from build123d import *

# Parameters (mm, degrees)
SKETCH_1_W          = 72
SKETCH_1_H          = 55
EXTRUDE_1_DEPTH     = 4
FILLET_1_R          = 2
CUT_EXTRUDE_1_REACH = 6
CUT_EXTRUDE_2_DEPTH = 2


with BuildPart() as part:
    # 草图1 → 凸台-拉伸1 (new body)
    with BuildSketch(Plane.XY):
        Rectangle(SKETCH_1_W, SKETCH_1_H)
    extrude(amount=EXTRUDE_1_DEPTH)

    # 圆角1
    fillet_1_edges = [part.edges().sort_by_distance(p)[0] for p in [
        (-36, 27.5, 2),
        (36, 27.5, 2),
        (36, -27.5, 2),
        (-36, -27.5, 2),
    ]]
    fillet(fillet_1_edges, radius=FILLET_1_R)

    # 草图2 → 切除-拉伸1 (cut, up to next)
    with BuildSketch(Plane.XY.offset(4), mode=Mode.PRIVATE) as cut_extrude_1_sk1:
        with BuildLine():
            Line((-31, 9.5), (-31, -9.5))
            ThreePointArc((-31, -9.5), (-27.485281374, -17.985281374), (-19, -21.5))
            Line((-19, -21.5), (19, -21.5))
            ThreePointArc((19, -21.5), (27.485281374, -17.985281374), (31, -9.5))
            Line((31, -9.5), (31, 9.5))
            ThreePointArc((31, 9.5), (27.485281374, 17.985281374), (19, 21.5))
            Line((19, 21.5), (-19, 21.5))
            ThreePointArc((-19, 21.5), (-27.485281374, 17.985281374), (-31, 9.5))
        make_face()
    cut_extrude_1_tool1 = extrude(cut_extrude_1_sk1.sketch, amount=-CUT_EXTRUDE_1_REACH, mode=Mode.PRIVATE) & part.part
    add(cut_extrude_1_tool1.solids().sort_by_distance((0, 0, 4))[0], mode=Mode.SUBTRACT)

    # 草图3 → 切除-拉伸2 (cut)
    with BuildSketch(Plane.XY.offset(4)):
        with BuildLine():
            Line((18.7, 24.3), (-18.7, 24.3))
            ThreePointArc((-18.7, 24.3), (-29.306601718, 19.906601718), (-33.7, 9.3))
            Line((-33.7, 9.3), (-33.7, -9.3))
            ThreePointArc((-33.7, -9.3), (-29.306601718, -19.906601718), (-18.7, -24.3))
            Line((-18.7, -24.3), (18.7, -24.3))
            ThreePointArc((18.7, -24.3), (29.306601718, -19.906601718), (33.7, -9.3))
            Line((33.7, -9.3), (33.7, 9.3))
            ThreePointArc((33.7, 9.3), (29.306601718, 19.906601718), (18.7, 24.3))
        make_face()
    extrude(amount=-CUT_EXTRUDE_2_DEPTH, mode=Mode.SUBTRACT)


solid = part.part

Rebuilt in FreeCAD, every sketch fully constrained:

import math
import FreeCAD as App
import Part
import Sketcher
from FreeCAD import Vector
Q = App.Units.Quantity


def edges_at(feature, points):
    """Names of the edges that pass closest to the given points."""
    edges = feature.Shape.Edges
    near = lambda p: min(range(len(edges)), key=lambda i: edges[i].distToShape(Part.Vertex(*p))[0])
    return sorted({f"Edge{near(p) + 1}" for p in points})


def add_polygon(sketch, points):
    """Adds a closed chain of lines whose ends are joined by coincident constraints."""
    first, n = sketch.GeometryCount, len(points)
    for a, b in zip(points, points[1:] + points[:1]):
        sketch.addGeometry(Part.LineSegment(App.Vector(*a, 0), App.Vector(*b, 0)), False)
    for i in range(n):
        sketch.addConstraint(Sketcher.Constraint("Coincident", first + i, 2, first + (i + 1) % n, 1))

doc = App.newDocument("Part")
body = doc.addObject("PartDesign::Body", "Body")

sketch1 = doc.addObject("Sketcher::SketchObject", "Sketch")
body.addObject(sketch1)
sketch1.AttachmentSupport = (doc.XY_Plane, [""])
sketch1.MapMode = "FlatFace"
add_polygon(sketch1, [(-36, 27.5), (-36, -27.5), (36, -27.5), (36, 27.5)])
sketch1.addConstraint(Sketcher.Constraint("Vertical", 0))
sketch1.addConstraint(Sketcher.Constraint("Horizontal", 1))
sketch1.addConstraint(Sketcher.Constraint("Vertical", 2))
sketch1.addConstraint(Sketcher.Constraint("Horizontal", 3))
sketch1.addConstraint(Sketcher.Constraint("Symmetric", 0, 2, 2, 2, -1, 1))
sketch1.addConstraint(Sketcher.Constraint("DistanceX", 1, 1, 1, 2, Q("72 mm")))
sketch1.addConstraint(Sketcher.Constraint("DistanceY", 0, 2, 0, 1, Q("55 mm")))
pad1 = doc.addObject("PartDesign::Pad", "Pad")
body.addObject(pad1)
pad1.Profile = sketch1
pad1.Length = 4
doc.recompute()

fillet = doc.addObject("PartDesign::Fillet", "Fillet")
body.addObject(fillet)
fillet.Base = (pad1, edges_at(pad1, [
    (-36, 27.5, 2),
    (36, 27.5, 2),
    (36, -27.5, 2),
    (-36, -27.5, 2),
]))
fillet.Radius = 2

sketch2 = doc.addObject("Sketcher::SketchObject", "Sketch001")
body.addObject(sketch2)
sketch2.AttachmentSupport = (doc.XY_Plane, [""])
sketch2.MapMode = "FlatFace"
sketch2.AttachmentOffset = App.Placement(Vector(0, 0, 4), App.Rotation())
sketch2.addGeometry(Part.LineSegment(Vector(-31, 9.5, 0), Vector(-31, -9.5, 0)), False)
sketch2.addGeometry(Part.ArcOfCircle(Part.Circle(Vector(-19, -9.5, 0), Vector(0, 0, 1), 12), math.radians(-180), math.radians(-90)), False)
sketch2.addGeometry(Part.LineSegment(Vector(-19, -21.5, 0), Vector(19, -21.5, 0)), False)
sketch2.addGeometry(Part.ArcOfCircle(Part.Circle(Vector(19, -9.5, 0), Vector(0, 0, 1), 12), math.radians(-90), math.radians(0)), False)
sketch2.addGeometry(Part.LineSegment(Vector(31, -9.5, 0), Vector(31, 9.5, 0)), False)
sketch2.addGeometry(Part.ArcOfCircle(Part.Circle(Vector(19, 9.5, 0), Vector(0, 0, 1), 12), math.radians(0), math.radians(90)), False)
sketch2.addGeometry(Part.LineSegment(Vector(19, 21.5, 0), Vector(-19, 21.5, 0)), False)
sketch2.addGeometry(Part.ArcOfCircle(Part.Circle(Vector(-19, 9.5, 0), Vector(0, 0, 1), 12), math.radians(90), math.radians(180)), False)
sketch2.addConstraint(Sketcher.Constraint("Tangent", 0, 2, 1, 1))
sketch2.addConstraint(Sketcher.Constraint("Tangent", 1, 2, 2, 1))
sketch2.addConstraint(Sketcher.Constraint("Tangent", 2, 2, 3, 1))
sketch2.addConstraint(Sketcher.Constraint("Tangent", 3, 2, 4, 1))
sketch2.addConstraint(Sketcher.Constraint("Tangent", 4, 2, 5, 1))
sketch2.addConstraint(Sketcher.Constraint("Tangent", 5, 2, 6, 1))
sketch2.addConstraint(Sketcher.Constraint("Tangent", 6, 2, 7, 1))
sketch2.addConstraint(Sketcher.Constraint("Tangent", 7, 2, 0, 1))
sketch2.addConstraint(Sketcher.Constraint("Vertical", 0))
sketch2.addConstraint(Sketcher.Constraint("Horizontal", 2))
sketch2.addConstraint(Sketcher.Constraint("Vertical", 4))
sketch2.addConstraint(Sketcher.Constraint("Horizontal", 6))
sketch2.addConstraint(Sketcher.Constraint("Equal", 1, 3))
sketch2.addConstraint(Sketcher.Constraint("Equal", 3, 5))
sketch2.addConstraint(Sketcher.Constraint("Equal", 5, 7))
sketch2.addConstraint(Sketcher.Constraint("Symmetric", 1, 3, 5, 3, -1, 1))
sketch2.addConstraint(Sketcher.Constraint("Radius", 1, Q("12 mm")))
sketch2.addConstraint(Sketcher.Constraint("DistanceX", 2, 1, 2, 2, Q("38 mm")))
sketch2.addConstraint(Sketcher.Constraint("DistanceY", 0, 2, 0, 1, Q("19 mm")))
pocket1 = doc.addObject("PartDesign::Pocket", "Pocket")
body.addObject(pocket1)
pocket1.Profile = sketch2
pocket1.Type = "UpToFirst"

sketch3 = doc.addObject("Sketcher::SketchObject", "Sketch002")
body.addObject(sketch3)
sketch3.AttachmentSupport = (doc.XY_Plane, [""])
sketch3.MapMode = "FlatFace"
sketch3.AttachmentOffset = App.Placement(Vector(0, 0, 4), App.Rotation())
sketch3.addGeometry(Part.LineSegment(Vector(18.7, 24.3, 0), Vector(-18.7, 24.3, 0)), False)
sketch3.addGeometry(Part.ArcOfCircle(Part.Circle(Vector(-18.7, 9.3, 0), Vector(0, 0, 1), 15), math.radians(90), math.radians(180)), False)
sketch3.addGeometry(Part.LineSegment(Vector(-33.7, 9.3, 0), Vector(-33.7, -9.3, 0)), False)
sketch3.addGeometry(Part.ArcOfCircle(Part.Circle(Vector(-18.7, -9.3, 0), Vector(0, 0, 1), 15), math.radians(180), math.radians(270)), False)
sketch3.addGeometry(Part.LineSegment(Vector(-18.7, -24.3, 0), Vector(18.7, -24.3, 0)), False)
sketch3.addGeometry(Part.ArcOfCircle(Part.Circle(Vector(18.7, -9.3, 0), Vector(0, 0, 1), 15), math.radians(-90), math.radians(0)), False)
sketch3.addGeometry(Part.LineSegment(Vector(33.7, -9.3, 0), Vector(33.7, 9.3, 0)), False)
sketch3.addGeometry(Part.ArcOfCircle(Part.Circle(Vector(18.7, 9.3, 0), Vector(0, 0, 1), 15), math.radians(0), math.radians(90)), False)
sketch3.addConstraint(Sketcher.Constraint("Tangent", 0, 2, 1, 1))
sketch3.addConstraint(Sketcher.Constraint("Tangent", 1, 2, 2, 1))
sketch3.addConstraint(Sketcher.Constraint("Tangent", 2, 2, 3, 1))
sketch3.addConstraint(Sketcher.Constraint("Tangent", 3, 2, 4, 1))
sketch3.addConstraint(Sketcher.Constraint("Tangent", 4, 2, 5, 1))
sketch3.addConstraint(Sketcher.Constraint("Tangent", 5, 2, 6, 1))
sketch3.addConstraint(Sketcher.Constraint("Tangent", 6, 2, 7, 1))
sketch3.addConstraint(Sketcher.Constraint("Tangent", 7, 2, 0, 1))
sketch3.addConstraint(Sketcher.Constraint("Horizontal", 0))
sketch3.addConstraint(Sketcher.Constraint("Vertical", 2))
sketch3.addConstraint(Sketcher.Constraint("Horizontal", 4))
sketch3.addConstraint(Sketcher.Constraint("Vertical", 6))
sketch3.addConstraint(Sketcher.Constraint("Equal", 1, 3))
sketch3.addConstraint(Sketcher.Constraint("Equal", 3, 5))
sketch3.addConstraint(Sketcher.Constraint("Equal", 5, 7))
sketch3.addConstraint(Sketcher.Constraint("Symmetric", 1, 3, 5, 3, -1, 1))
sketch3.addConstraint(Sketcher.Constraint("Radius", 1, Q("15 mm")))
sketch3.addConstraint(Sketcher.Constraint("DistanceX", 0, 2, 0, 1, Q("37.4 mm")))
sketch3.addConstraint(Sketcher.Constraint("DistanceY", 2, 2, 2, 1, Q("18.6 mm")))
pocket2 = doc.addObject("PartDesign::Pocket", "Pocket001")
body.addObject(pocket2)
pocket2.Profile = sketch3
pocket2.Length = 2

doc.recompute()
